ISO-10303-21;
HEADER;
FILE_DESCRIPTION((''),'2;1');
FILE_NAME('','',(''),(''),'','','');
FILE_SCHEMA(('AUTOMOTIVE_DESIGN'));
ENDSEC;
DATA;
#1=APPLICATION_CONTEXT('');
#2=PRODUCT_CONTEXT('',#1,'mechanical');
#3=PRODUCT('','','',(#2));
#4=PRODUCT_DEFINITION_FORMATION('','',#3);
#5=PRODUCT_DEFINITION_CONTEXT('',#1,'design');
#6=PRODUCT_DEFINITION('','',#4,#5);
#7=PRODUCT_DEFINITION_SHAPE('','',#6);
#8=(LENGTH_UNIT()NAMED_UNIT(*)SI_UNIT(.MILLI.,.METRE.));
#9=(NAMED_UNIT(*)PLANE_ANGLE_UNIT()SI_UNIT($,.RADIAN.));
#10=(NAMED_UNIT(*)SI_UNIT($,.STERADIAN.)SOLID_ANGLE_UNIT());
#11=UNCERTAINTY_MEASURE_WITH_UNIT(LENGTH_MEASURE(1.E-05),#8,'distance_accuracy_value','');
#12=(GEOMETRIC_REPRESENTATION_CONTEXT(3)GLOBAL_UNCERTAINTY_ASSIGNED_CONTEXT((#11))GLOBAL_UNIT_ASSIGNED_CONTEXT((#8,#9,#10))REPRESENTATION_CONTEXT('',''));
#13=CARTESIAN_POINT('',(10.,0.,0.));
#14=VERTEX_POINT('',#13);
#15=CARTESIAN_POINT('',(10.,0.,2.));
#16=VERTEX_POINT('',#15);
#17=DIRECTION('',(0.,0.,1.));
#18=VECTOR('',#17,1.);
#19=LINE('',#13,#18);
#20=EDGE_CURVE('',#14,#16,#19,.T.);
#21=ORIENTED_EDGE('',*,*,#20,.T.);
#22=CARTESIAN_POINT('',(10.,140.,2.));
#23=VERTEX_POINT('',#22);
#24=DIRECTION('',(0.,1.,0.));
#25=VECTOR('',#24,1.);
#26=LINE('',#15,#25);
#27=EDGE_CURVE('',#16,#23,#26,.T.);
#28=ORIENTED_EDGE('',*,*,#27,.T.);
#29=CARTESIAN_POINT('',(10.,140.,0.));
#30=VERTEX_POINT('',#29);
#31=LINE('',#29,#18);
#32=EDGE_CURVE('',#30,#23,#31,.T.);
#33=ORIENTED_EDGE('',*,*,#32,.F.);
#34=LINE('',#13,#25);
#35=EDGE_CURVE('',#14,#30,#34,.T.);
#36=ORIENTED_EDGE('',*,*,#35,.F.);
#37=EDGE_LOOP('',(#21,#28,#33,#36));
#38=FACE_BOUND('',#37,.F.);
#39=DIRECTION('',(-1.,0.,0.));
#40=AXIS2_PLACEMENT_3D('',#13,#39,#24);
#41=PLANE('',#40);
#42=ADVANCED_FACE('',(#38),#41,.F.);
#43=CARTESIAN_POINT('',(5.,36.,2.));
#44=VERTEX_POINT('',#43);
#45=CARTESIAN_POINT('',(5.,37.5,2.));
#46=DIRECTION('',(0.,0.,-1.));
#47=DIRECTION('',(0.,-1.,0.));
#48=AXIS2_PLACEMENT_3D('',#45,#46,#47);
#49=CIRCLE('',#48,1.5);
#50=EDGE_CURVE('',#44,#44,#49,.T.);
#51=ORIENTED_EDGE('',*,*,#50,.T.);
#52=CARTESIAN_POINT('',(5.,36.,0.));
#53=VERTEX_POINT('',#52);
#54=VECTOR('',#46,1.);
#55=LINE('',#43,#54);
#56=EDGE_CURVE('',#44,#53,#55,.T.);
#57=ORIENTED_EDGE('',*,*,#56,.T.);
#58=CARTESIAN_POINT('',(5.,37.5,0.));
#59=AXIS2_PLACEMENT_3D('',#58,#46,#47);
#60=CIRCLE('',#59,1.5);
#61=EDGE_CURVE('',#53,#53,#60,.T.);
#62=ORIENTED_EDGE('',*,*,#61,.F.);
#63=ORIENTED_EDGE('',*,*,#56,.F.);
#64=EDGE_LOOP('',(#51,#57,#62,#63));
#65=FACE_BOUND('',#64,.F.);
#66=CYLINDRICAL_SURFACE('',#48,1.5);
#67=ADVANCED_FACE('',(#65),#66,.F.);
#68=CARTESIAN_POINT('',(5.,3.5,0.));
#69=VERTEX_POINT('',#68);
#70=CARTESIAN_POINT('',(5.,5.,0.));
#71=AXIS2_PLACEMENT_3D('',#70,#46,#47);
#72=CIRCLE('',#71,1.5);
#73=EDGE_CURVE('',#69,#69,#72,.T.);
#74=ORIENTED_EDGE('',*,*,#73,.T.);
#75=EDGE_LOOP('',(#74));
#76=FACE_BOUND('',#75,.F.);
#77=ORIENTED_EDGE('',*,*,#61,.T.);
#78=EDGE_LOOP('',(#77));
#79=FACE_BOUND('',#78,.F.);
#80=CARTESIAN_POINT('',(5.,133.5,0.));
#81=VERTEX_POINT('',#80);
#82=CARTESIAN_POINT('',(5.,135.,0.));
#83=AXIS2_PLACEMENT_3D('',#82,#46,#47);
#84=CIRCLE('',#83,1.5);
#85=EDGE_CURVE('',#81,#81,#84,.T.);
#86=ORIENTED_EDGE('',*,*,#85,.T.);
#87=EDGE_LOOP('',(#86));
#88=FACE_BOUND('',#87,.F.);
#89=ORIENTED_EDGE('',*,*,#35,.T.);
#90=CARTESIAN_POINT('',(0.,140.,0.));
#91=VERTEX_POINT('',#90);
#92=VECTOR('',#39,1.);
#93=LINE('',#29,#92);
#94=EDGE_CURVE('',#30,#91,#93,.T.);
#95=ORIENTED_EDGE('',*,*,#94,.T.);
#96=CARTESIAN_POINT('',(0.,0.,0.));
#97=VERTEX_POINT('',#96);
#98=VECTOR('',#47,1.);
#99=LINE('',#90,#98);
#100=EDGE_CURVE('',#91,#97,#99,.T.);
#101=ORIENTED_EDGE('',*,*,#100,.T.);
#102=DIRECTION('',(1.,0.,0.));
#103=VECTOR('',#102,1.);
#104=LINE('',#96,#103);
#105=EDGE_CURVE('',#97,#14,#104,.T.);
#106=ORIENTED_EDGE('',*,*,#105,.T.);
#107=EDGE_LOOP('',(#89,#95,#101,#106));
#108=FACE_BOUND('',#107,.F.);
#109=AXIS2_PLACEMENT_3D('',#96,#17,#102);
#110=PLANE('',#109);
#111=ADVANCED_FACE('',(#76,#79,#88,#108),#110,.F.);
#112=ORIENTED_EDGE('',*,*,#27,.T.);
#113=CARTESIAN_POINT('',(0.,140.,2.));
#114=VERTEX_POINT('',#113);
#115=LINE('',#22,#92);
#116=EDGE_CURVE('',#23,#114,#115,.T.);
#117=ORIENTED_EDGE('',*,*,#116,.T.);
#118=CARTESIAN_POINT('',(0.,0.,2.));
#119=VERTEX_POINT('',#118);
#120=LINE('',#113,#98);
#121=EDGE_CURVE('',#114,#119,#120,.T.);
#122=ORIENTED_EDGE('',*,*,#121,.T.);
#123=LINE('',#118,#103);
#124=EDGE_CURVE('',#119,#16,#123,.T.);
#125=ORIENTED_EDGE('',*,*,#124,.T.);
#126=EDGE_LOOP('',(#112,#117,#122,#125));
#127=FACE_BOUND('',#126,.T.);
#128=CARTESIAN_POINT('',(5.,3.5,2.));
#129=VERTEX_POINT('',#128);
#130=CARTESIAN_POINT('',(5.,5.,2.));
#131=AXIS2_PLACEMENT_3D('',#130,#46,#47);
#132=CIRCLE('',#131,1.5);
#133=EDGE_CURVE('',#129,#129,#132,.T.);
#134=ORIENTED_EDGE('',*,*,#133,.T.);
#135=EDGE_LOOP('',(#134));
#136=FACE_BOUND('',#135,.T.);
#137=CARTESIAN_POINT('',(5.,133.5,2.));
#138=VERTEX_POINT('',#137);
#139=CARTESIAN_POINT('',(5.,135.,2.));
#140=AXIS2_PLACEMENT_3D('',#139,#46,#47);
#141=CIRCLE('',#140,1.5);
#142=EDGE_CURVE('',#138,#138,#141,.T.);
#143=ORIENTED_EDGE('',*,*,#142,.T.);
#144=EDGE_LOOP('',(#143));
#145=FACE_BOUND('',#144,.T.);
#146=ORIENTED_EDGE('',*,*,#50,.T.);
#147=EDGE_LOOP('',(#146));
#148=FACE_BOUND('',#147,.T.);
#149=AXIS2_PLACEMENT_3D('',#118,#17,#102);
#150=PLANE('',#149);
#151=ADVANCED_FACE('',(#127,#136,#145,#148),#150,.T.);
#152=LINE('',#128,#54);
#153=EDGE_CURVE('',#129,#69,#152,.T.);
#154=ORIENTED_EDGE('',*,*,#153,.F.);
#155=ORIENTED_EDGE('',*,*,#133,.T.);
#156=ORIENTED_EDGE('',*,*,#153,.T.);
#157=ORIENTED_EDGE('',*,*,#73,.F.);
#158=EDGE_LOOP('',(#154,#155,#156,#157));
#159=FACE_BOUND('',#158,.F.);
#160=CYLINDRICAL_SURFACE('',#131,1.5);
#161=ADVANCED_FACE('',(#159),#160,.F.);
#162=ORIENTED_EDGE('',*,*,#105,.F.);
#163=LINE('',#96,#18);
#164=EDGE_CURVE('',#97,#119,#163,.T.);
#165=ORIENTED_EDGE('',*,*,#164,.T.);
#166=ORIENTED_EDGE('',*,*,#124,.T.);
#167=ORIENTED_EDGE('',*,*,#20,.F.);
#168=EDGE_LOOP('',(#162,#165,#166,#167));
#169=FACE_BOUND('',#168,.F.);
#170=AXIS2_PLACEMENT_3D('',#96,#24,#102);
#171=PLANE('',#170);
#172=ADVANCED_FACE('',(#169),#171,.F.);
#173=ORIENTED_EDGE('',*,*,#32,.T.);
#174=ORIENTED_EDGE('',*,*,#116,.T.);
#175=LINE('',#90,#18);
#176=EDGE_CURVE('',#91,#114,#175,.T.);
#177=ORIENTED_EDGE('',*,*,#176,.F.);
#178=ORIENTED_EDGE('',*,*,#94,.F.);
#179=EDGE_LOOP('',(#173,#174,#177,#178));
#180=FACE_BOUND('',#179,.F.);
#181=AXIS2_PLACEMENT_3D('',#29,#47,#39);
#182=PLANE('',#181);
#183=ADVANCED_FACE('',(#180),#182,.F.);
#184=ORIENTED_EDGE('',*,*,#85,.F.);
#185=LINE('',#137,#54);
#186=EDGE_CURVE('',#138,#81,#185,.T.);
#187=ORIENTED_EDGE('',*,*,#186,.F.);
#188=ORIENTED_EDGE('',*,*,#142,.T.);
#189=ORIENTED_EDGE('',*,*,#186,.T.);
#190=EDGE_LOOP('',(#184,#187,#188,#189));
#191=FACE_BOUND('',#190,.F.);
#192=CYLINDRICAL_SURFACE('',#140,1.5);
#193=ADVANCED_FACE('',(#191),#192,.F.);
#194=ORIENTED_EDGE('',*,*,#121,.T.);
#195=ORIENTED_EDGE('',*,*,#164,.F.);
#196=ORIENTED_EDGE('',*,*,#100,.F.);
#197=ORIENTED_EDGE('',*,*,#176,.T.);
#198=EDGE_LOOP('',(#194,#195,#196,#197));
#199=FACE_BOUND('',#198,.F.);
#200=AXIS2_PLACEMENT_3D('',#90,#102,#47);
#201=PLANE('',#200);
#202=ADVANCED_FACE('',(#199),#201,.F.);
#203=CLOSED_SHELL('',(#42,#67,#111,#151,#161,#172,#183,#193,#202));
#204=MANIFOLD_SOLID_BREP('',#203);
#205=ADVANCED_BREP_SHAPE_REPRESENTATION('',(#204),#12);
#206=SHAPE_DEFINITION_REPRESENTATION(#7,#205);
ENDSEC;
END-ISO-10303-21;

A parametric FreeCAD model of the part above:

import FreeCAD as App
import Part
import Sketcher

doc = App.newDocument("Part")
body = doc.addObject("PartDesign::Body", "Body")

# Sketch on XY plane
sketch1 = body.newObject("Sketcher::SketchObject", "Sketch")
sketch1.AttachmentSupport = (doc.getObject("XY_Plane"), [""])
sketch1.MapMode = "FlatFace"
sketch1.addGeometry(Part.LineSegment(App.Vector(0, 140, 0), App.Vector(0, 0, 0)), False)
sketch1.addGeometry(Part.LineSegment(App.Vector(0, 0, 0), App.Vector(10, 0, 0)), False)
sketch1.addGeometry(Part.LineSegment(App.Vector(10, 0, 0), App.Vector(10, 140, 0)), False)
sketch1.addGeometry(Part.LineSegment(App.Vector(10, 140, 0), App.Vector(0, 140, 0)), False)
sketch1.addConstraint(Sketcher.Constraint("Coincident", 0, 2, 1, 1))
sketch1.addConstraint(Sketcher.Constraint("Coincident", 1, 2, 2, 1))
sketch1.addConstraint(Sketcher.Constraint("Coincident", 2, 2, 3, 1))
sketch1.addConstraint(Sketcher.Constraint("Coincident", 3, 2, 0, 1))
sketch1.addConstraint(Sketcher.Constraint("Vertical", 0))
sketch1.addConstraint(Sketcher.Constraint("Horizontal", 1))
sketch1.addConstraint(Sketcher.Constraint("Vertical", 2))
sketch1.addConstraint(Sketcher.Constraint("Horizontal", 3))
sketch1.addConstraint(Sketcher.Constraint("Coincident", 0, 2, -1, 1))
sketch1.addConstraint(Sketcher.Constraint("DistanceX", 1, 1, 1, 2, 10.0))
sketch1.addConstraint(Sketcher.Constraint("DistanceY", 0, 2, 0, 1, 140.0))
pad1 = body.newObject("PartDesign::Pad", "Pad")
pad1.Profile = sketch1
pad1.Length = 2

# Sketch on XY plane
sketch2 = body.newObject("Sketcher::SketchObject", "Sketch001")
sketch2.AttachmentSupport = (doc.getObject("XY_Plane"), [""])
sketch2.MapMode = "FlatFace"
sketch2.AttachmentOffset = App.Placement(App.Vector(0, 0, 2), App.Rotation())
sketch2.addGeometry(Part.Circle(App.Vector(5, 5, 0), App.Vector(0, 0, 1), 1.5), False)
sketch2.addGeometry(Part.Circle(App.Vector(5, 135, 0), App.Vector(0, 0, 1), 1.5), False)
sketch2.addConstraint(Sketcher.Constraint("Equal", 0, 1))
sketch2.addConstraint(Sketcher.Constraint("Vertical", 0, 3, 1, 3))
sketch2.addConstraint(Sketcher.Constraint("Diameter", 0, 3.0))
sketch2.addConstraint(Sketcher.Constraint("DistanceX", -1, 1, 0, 3, 5.0))
sketch2.addConstraint(Sketcher.Constraint("DistanceY", -1, 1, 0, 3, 5.0))
sketch2.addConstraint(Sketcher.Constraint("DistanceY", -1, 1, 1, 3, 135.0))
doc.recompute()
hole = body.newObject("PartDesign::Hole", "Hole")
hole.Profile = sketch2
hole.ThreadType = "None"
hole.Diameter = 3
hole.DepthType = "ThroughAll"

# Sketch on XY plane
sketch3 = body.newObject("Sketcher::SketchObject", "Sketch002")
sketch3.AttachmentSupport = (doc.getObject("XY_Plane"), [""])
sketch3.MapMode = "FlatFace"
sketch3.AttachmentOffset = App.Placement(App.Vector(0, 0, 2), App.Rotation())
sketch3.addGeometry(Part.Circle(App.Vector(5, 37.5, 0), App.Vector(0, 0, 1), 1.5), False)
sketch3.addConstraint(Sketcher.Constraint("Diameter", 0, 3.0))
sketch3.addConstraint(Sketcher.Constraint("DistanceX", -1, 1, 0, 3, 5.0))
sketch3.addConstraint(Sketcher.Constraint("DistanceY", -1, 1, 0, 3, 37.5))
doc.recompute()
hole2 = body.newObject("PartDesign::Hole", "Hole001")
hole2.Profile = sketch3
hole2.ThreadType = "None"
hole2.Diameter = 3
hole2.DepthType = "ThroughAll"

doc.recompute()
